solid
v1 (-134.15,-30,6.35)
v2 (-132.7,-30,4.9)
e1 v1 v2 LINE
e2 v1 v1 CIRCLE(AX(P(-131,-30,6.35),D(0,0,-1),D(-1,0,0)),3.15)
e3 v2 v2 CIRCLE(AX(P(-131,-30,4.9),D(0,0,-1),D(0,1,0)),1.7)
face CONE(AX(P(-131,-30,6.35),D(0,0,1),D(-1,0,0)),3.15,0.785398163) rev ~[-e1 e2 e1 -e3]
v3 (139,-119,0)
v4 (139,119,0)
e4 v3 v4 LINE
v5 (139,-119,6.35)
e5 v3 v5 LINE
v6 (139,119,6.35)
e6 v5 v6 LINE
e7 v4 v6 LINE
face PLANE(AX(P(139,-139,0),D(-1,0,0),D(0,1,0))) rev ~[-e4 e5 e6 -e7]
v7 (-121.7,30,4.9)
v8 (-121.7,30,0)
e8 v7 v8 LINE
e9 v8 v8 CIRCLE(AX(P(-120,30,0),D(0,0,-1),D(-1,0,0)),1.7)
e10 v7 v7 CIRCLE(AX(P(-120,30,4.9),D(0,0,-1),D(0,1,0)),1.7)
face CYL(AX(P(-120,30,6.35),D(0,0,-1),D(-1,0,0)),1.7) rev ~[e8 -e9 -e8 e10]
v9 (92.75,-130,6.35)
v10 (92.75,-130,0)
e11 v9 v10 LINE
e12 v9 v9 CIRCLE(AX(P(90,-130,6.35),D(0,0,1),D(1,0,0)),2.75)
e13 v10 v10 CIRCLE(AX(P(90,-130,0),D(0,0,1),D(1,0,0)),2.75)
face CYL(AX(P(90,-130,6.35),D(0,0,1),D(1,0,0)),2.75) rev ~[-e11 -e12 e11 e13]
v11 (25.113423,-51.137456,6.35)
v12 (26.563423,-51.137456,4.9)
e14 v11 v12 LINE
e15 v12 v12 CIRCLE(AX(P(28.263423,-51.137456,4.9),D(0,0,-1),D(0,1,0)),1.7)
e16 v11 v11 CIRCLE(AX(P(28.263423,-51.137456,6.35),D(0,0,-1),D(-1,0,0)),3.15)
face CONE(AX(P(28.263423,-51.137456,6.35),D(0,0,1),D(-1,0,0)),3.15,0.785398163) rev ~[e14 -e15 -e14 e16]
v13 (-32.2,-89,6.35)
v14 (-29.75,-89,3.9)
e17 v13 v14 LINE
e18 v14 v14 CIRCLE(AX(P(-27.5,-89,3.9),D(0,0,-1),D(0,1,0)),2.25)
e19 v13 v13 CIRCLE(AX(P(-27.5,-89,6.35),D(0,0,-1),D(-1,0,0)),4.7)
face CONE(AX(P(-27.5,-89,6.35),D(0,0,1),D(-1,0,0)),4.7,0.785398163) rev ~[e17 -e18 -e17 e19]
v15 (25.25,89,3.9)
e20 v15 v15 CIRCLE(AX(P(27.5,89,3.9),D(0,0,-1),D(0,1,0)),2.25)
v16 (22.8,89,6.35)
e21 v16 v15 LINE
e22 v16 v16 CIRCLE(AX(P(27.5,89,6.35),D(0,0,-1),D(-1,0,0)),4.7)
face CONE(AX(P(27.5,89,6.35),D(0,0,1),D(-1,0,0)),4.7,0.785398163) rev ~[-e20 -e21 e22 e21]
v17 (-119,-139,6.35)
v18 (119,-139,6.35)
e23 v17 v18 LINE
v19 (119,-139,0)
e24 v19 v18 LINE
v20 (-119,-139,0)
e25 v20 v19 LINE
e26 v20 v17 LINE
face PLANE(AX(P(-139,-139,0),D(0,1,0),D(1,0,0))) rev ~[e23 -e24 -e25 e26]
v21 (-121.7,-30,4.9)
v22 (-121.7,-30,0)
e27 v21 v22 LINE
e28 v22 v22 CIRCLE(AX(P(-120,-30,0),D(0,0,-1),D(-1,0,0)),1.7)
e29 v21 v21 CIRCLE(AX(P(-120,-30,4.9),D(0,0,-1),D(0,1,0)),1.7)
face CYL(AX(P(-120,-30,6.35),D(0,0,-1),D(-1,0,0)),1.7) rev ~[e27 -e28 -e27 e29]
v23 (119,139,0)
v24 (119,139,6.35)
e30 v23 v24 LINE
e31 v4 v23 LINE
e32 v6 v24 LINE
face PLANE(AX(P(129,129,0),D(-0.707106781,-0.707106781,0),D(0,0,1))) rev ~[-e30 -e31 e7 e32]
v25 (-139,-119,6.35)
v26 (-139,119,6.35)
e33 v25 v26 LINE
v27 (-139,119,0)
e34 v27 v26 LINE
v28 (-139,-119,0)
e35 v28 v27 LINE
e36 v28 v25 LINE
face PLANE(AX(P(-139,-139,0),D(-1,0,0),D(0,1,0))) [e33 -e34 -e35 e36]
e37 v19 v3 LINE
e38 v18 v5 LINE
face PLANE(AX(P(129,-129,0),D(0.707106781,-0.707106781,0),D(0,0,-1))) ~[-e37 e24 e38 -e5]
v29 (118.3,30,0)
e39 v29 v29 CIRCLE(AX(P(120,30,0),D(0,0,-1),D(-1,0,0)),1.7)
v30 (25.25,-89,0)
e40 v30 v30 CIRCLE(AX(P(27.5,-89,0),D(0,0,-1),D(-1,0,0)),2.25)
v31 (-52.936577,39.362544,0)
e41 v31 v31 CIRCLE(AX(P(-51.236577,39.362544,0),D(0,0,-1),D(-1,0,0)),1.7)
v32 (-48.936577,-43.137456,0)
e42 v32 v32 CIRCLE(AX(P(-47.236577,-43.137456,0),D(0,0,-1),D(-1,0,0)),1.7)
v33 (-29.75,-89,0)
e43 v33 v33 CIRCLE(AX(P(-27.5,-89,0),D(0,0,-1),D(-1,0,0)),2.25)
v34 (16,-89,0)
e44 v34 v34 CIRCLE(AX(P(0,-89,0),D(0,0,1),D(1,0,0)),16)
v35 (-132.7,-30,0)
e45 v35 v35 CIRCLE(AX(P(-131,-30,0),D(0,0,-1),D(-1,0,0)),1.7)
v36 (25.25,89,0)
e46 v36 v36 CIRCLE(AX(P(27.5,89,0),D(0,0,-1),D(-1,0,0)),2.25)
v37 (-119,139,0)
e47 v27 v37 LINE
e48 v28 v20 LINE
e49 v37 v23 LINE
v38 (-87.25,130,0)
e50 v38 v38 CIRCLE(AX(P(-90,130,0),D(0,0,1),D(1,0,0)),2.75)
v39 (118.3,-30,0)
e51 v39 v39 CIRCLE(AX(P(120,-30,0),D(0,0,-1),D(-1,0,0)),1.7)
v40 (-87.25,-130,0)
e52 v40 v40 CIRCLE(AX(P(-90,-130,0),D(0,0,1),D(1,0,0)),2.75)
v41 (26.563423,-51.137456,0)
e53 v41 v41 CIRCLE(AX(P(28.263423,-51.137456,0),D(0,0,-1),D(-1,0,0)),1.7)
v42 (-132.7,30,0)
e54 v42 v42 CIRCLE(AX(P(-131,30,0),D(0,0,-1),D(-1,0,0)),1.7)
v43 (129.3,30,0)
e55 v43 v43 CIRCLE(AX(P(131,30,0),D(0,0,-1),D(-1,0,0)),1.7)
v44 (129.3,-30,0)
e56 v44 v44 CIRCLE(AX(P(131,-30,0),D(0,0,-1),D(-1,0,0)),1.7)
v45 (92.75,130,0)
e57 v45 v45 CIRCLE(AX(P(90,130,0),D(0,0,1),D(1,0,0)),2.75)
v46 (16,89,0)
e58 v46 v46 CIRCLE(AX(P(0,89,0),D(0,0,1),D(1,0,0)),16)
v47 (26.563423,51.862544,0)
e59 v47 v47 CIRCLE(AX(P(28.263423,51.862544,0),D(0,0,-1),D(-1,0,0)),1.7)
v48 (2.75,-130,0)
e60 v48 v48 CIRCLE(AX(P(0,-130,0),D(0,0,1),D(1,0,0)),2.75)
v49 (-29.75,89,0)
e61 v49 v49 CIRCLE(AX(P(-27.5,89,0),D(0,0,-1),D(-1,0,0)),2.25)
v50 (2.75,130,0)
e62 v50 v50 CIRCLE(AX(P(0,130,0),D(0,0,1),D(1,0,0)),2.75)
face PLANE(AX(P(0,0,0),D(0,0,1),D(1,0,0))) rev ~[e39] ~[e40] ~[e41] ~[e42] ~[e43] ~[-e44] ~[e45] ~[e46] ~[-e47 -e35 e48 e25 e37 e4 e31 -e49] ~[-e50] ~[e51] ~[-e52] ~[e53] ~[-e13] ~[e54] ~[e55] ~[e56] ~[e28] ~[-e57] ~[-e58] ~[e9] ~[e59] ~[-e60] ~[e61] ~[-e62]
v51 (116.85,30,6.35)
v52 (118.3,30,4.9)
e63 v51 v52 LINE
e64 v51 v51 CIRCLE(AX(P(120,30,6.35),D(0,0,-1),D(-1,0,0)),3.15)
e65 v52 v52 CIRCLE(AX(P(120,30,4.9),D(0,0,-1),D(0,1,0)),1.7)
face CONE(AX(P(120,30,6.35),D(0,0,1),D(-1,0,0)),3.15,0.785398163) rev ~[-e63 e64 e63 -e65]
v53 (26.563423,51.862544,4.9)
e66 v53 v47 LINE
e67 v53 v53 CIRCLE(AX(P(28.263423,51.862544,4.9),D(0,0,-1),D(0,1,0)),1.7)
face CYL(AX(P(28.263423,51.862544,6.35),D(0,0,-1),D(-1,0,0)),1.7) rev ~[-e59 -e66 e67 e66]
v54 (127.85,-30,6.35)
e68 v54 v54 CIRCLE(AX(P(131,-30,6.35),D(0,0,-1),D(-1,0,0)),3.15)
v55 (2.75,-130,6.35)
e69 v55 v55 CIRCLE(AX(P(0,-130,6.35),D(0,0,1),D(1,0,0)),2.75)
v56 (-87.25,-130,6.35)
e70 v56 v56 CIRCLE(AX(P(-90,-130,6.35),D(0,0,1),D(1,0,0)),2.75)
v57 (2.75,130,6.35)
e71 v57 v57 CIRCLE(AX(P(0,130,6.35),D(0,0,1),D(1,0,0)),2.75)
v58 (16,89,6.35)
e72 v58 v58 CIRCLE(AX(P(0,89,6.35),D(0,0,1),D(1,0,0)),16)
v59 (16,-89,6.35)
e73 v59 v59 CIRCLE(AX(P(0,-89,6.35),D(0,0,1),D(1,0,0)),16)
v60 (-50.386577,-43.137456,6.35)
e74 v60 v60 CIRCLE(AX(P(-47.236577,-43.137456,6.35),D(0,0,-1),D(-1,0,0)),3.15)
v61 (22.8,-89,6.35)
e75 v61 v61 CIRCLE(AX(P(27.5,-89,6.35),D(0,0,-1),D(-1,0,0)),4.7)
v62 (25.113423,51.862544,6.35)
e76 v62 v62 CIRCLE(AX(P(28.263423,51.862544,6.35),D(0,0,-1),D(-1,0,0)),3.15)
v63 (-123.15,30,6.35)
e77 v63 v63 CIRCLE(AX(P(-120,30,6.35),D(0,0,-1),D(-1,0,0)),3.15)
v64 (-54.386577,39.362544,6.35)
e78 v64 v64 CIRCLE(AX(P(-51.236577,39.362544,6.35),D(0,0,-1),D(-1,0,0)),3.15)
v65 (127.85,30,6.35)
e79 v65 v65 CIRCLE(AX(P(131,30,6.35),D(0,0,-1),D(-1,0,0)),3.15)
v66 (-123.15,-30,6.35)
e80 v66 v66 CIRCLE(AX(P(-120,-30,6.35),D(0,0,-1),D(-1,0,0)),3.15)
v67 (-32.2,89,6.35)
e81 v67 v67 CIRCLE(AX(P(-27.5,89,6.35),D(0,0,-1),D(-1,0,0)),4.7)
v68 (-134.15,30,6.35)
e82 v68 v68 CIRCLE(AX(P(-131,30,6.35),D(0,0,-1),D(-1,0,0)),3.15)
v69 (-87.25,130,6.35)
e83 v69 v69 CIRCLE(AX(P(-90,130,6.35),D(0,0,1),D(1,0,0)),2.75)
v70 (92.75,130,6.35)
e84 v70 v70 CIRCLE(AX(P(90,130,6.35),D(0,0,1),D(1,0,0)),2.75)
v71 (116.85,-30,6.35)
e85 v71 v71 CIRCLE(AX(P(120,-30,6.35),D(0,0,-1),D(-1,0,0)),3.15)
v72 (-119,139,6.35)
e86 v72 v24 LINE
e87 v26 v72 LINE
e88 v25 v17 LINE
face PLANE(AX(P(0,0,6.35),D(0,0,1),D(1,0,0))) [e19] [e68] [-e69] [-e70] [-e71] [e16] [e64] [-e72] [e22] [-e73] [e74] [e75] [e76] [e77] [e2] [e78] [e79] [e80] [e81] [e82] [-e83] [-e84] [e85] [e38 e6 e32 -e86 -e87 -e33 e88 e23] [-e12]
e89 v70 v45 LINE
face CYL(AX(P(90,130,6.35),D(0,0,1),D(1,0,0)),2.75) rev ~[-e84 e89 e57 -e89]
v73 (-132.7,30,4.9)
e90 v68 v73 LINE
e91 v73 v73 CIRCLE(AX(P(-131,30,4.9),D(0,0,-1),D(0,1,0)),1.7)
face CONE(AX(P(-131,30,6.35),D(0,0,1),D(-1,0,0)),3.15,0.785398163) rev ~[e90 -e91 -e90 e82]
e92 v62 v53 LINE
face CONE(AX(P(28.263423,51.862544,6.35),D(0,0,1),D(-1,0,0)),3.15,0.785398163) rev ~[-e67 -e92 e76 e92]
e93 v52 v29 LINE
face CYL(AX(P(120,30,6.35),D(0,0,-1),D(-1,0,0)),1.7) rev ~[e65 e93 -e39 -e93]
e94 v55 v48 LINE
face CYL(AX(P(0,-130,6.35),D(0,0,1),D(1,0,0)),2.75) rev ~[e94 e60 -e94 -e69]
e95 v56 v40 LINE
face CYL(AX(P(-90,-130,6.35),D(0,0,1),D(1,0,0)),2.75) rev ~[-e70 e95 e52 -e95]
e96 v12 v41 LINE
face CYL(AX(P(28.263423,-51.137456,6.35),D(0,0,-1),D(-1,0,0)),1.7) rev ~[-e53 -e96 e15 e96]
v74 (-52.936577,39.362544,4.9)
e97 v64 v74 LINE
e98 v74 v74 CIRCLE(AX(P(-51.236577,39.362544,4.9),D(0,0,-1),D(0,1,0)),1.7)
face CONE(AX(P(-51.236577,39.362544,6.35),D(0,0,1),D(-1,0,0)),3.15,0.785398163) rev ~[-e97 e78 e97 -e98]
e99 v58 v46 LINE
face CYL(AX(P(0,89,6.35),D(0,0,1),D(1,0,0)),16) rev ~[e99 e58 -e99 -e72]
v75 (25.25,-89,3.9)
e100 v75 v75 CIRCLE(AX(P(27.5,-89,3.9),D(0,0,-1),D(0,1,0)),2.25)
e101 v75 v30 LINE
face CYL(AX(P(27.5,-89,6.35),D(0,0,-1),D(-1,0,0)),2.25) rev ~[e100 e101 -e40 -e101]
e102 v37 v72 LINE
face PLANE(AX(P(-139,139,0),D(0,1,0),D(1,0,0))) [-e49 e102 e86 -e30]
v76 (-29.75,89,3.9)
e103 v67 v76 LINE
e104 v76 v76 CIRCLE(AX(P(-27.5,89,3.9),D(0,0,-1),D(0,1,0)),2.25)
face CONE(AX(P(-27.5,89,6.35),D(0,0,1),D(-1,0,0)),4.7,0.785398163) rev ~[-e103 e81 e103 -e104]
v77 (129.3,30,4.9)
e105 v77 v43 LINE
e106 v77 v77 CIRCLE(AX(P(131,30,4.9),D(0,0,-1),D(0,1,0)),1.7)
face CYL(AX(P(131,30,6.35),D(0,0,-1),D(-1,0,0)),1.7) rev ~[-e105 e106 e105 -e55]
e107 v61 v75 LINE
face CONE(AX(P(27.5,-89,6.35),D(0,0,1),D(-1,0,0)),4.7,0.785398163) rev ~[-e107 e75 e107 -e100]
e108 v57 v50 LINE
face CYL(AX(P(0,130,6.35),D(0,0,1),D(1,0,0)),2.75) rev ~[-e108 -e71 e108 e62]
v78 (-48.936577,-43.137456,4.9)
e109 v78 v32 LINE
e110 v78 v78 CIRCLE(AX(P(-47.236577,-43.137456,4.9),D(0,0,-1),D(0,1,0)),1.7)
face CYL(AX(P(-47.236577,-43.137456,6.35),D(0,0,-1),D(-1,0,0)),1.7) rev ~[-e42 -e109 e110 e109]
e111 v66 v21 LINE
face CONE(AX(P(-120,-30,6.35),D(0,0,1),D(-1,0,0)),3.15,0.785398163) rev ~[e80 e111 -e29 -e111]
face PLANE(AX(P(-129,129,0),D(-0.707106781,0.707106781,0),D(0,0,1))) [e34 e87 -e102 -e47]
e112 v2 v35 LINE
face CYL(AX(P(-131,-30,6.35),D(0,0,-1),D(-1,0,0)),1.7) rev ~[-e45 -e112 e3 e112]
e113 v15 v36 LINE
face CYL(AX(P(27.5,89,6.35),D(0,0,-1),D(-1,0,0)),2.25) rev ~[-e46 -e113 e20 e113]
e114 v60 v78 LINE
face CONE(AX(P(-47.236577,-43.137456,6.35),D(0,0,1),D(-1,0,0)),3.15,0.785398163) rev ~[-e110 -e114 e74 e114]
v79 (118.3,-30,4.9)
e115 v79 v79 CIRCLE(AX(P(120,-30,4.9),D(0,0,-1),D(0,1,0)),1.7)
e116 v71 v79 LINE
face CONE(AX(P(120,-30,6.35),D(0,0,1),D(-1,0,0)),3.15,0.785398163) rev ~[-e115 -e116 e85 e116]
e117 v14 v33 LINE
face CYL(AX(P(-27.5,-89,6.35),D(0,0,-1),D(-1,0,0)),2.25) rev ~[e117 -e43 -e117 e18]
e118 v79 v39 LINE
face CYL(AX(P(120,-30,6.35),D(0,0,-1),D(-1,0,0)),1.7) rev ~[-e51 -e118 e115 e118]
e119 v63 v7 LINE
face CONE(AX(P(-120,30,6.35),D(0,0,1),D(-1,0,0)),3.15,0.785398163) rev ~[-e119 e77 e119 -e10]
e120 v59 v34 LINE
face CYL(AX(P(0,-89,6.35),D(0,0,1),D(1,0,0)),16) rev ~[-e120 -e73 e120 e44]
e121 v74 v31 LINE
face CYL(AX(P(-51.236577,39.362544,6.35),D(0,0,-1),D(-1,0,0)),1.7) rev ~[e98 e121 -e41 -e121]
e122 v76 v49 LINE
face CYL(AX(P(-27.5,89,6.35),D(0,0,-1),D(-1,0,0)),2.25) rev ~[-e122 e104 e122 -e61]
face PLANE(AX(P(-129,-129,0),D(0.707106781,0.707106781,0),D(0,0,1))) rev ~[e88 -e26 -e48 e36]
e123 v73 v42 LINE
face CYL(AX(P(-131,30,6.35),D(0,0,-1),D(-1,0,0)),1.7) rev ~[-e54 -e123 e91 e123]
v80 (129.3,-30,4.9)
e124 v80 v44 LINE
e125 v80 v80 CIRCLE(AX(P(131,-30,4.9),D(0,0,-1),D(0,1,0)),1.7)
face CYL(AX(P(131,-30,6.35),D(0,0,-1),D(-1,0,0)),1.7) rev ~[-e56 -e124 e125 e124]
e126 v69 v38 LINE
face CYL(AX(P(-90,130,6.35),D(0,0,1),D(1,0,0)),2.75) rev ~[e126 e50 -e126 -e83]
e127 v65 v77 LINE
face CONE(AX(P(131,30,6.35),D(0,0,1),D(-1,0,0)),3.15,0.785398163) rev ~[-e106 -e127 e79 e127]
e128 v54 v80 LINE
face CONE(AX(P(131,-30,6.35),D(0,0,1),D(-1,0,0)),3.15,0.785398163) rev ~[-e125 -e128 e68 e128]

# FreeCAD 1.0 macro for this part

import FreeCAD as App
import Part
import Sketcher

V = App.Vector
Q = App.Units.Quantity


def edges_at(feature, points):
    """Names of the edges that pass closest to the given points."""
    edges = feature.Shape.Edges
    near = lambda p: min(range(len(edges)), key=lambda i: edges[i].distToShape(Part.Vertex(*p))[0])
    return sorted({f"Edge{near(p) + 1}" for p in points})

doc = App.newDocument("Part")
body = doc.addObject("PartDesign::Body", "Body")

# Sketch on XY plane
sketch1 = body.newObject("Sketcher::SketchObject", "Sketch")
sketch1.AttachmentSupport = (doc.getObject("XY_Plane"), [""])
sketch1.MapMode = "FlatFace"
sketch1.addGeometry(Part.LineSegment(V(-139, 139, 0), V(-139, -139, 0)), False)
sketch1.addGeometry(Part.LineSegment(V(-139, -139, 0), V(139, -139, 0)), False)
sketch1.addGeometry(Part.LineSegment(V(139, -139, 0), V(139, 139, 0)), False)
sketch1.addGeometry(Part.LineSegment(V(139, 139, 0), V(-139, 139, 0)), False)
sketch1.addConstraint(Sketcher.Constraint("Coincident", 0, 2, 1, 1))
sketch1.addConstraint(Sketcher.Constraint("Coincident", 1, 2, 2, 1))
sketch1.addConstraint(Sketcher.Constraint("Coincident", 2, 2, 3, 1))
sketch1.addConstraint(Sketcher.Constraint("Coincident", 3, 2, 0, 1))
sketch1.addConstraint(Sketcher.Constraint("Vertical", 0))
sketch1.addConstraint(Sketcher.Constraint("Horizontal", 1))
sketch1.addConstraint(Sketcher.Constraint("Vertical", 2))
sketch1.addConstraint(Sketcher.Constraint("Horizontal", 3))
sketch1.addConstraint(Sketcher.Constraint("Symmetric", 0, 2, 2, 2, -1, 1))
sketch1.addConstraint(Sketcher.Constraint("Equal", 3, 0))
sketch1.addConstraint(Sketcher.Constraint("DistanceX", 1, 1, 1, 2, Q("278 mm")))
pad1 = body.newObject("PartDesign::Pad", "Pad")
pad1.Profile = sketch1
pad1.Length = 6.35
doc.recompute()

chamfer = body.newObject("PartDesign::Chamfer", "Chamfer")
chamfer.Base = (pad1, edges_at(pad1, [
    (-139, 139, 3.175),
    (139, 139, 3.175),
    (139, -139, 3.175),
    (-139, -139, 3.175),
]))
chamfer.Size = 20

# Sketch on XY plane
sketch2 = body.newObject("Sketcher::SketchObject", "Sketch001")
sketch2.AttachmentSupport = (doc.getObject("XY_Plane"), [""])
sketch2.MapMode = "FlatFace"
sketch2.AttachmentOffset = App.Placement(V(0, 0, 6.35), App.Rotation())
sketch2.addGeometry(Part.Circle(V(-90, 130, 0), V(0, 0, 1), 2.75), False)
sketch2.addGeometry(Part.Circle(V(0, 130, 0), V(0, 0, 1), 2.75), False)
sketch2.addGeometry(Part.Circle(V(90, 130, 0), V(0, 0, 1), 2.75), False)
sketch2.addGeometry(Part.Circle(V(90, -130, 0), V(0, 0, 1), 2.75), False)
sketch2.addGeometry(Part.Circle(V(0, -130, 0), V(0, 0, 1), 2.75), False)
sketch2.addGeometry(Part.Circle(V(-90, -130, 0), V(0, 0, 1), 2.75), False)
sketch2.addConstraint(Sketcher.Constraint("Equal", 0, 1))
sketch2.addConstraint(Sketcher.Constraint("Equal", 1, 2))
sketch2.addConstraint(Sketcher.Constraint("Equal", 2, 3))
sketch2.addConstraint(Sketcher.Constraint("Equal", 3, 4))
sketch2.addConstraint(Sketcher.Constraint("Equal", 4, 5))
sketch2.addConstraint(Sketcher.Constraint("Symmetric", 0, 3, 3, 3, -1, 1))
sketch2.addConstraint(Sketcher.Constraint("Symmetric", 1, 3, 4, 3, -1, 1))
sketch2.addConstraint(Sketcher.Constraint("Symmetric", 2, 3, 5, 3, -1, 1))
sketch2.addConstraint(Sketcher.Constraint("Symmetric", 0, 3, 2, 3, -2))
sketch2.addConstraint(Sketcher.Constraint("PointOnObject", 1, 3, -2))
sketch2.addConstraint(Sketcher.Constraint("Horizontal", 0, 3, 1, 3))
sketch2.addConstraint(Sketcher.Constraint("Diameter", 0, Q("5.5 mm")))
sketch2.addConstraint(Sketcher.Constraint("DistanceX", 0, 3, -1, 1, Q("90 mm")))
sketch2.addConstraint(Sketcher.Constraint("DistanceY", -1, 1, 0, 3, Q("130 mm")))
pocket1 = body.newObject("PartDesign::Pocket", "Pocket")
pocket1.Profile = sketch2
pocket1.Length = 76.2

# Sketch on XY plane
sketch3 = body.newObject("Sketcher::SketchObject", "Sketch002")
sketch3.AttachmentSupport = (doc.getObject("XY_Plane"), [""])
sketch3.MapMode = "FlatFace"
sketch3.AttachmentOffset = App.Placement(V(0, 0, 6.35), App.Rotation())
sketch3.addGeometry(Part.Circle(V(0, 89, 0), V(0, 0, 1), 16), False)
sketch3.addGeometry(Part.Circle(V(0, -89, 0), V(0, 0, 1), 16), False)
sketch3.addConstraint(Sketcher.Constraint("Equal", 0, 1))
sketch3.addConstraint(Sketcher.Constraint("Symmetric", 0, 3, 1, 3, -1, 1))
sketch3.addConstraint(Sketcher.Constraint("PointOnObject", 0, 3, -2))
sketch3.addConstraint(Sketcher.Constraint("Diameter", 0, Q("32 mm")))
sketch3.addConstraint(Sketcher.Constraint("DistanceY", -1, 1, 0, 3, Q("89 mm")))
pocket2 = body.newObject("PartDesign::Pocket", "Pocket001")
pocket2.Profile = sketch3
pocket2.Length = 105

# Sketch on XY plane
sketch4 = body.newObject("Sketcher::SketchObject", "Sketch003")
sketch4.AttachmentSupport = (doc.getObject("XY_Plane"), [""])
sketch4.MapMode = "FlatFace"
sketch4.AttachmentOffset = App.Placement(V(0, 0, 6.35), App.Rotation())
sketch4.addGeometry(Part.Circle(V(-27.5, 89, 0), V(0, 0, 1), 2.25), False)
sketch4.addGeometry(Part.Circle(V(27.5, 89, 0), V(0, 0, 1), 2.25), False)
sketch4.addGeometry(Part.Circle(V(27.5, -89, 0), V(0, 0, 1), 2.25), False)
sketch4.addGeometry(Part.Circle(V(-27.5, -89, 0), V(0, 0, 1), 2.25), False)
sketch4.addConstraint(Sketcher.Constraint("Equal", 0, 1))
sketch4.addConstraint(Sketcher.Constraint("Equal", 1, 2))
sketch4.addConstraint(Sketcher.Constraint("Equal", 2, 3))
sketch4.addConstraint(Sketcher.Constraint("Symmetric", 0, 3, 2, 3, -1, 1))
sketch4.addConstraint(Sketcher.Constraint("Symmetric", 1, 3, 3, 3, -1, 1))
sketch4.addConstraint(Sketcher.Constraint("Symmetric", 0, 3, 1, 3, -2))
sketch4.addConstraint(Sketcher.Constraint("Diameter", 0, Q("4.5 mm")))
sketch4.addConstraint(Sketcher.Constraint("DistanceY", -1, 1, 0, 3, Q("89 mm")))
sketch4.addConstraint(Sketcher.Constraint("DistanceX", 0, 3, 1, 3, Q("55 mm")))
doc.recompute()
hole = body.newObject("PartDesign::Hole", "Hole")
hole.Profile = sketch4
hole.ThreadType = "None"
hole.Diameter = 4.5
hole.DepthType = "ThroughAll"
hole.HoleCutType = "Countersink"
hole.HoleCutDiameter = 9.4
hole.HoleCutCountersinkAngle = 90

# Sketch on XY plane
sketch5 = body.newObject("Sketcher::SketchObject", "Sketch004")
sketch5.AttachmentSupport = (doc.getObject("XY_Plane"), [""])
sketch5.MapMode = "FlatFace"
sketch5.AttachmentOffset = App.Placement(V(0, 0, 6.35), App.Rotation())
sketch5.addGeometry(Part.Circle(V(-131, 30, 0), V(0, 0, 1), 1.7), False)
sketch5.addGeometry(Part.Circle(V(-120, 30, 0), V(0, 0, 1), 1.7), False)
sketch5.addGeometry(Part.Circle(V(-120, -30, 0), V(0, 0, 1), 1.7), False)
sketch5.addGeometry(Part.Circle(V(-131, -30, 0), V(0, 0, 1), 1.7), False)
sketch5.addGeometry(Part.Circle(V(131, -30, 0), V(0, 0, 1), 1.7), False)
sketch5.addGeometry(Part.Circle(V(120, -30, 0), V(0, 0, 1), 1.7), False)
sketch5.addGeometry(Part.Circle(V(120, 30, 0), V(0, 0, 1), 1.7), False)
sketch5.addGeometry(Part.Circle(V(131, 30, 0), V(0, 0, 1), 1.7), False)
sketch5.addConstraint(Sketcher.Constraint("Equal", 0, 1))
sketch5.addConstraint(Sketcher.Constraint("Equal", 1, 2))
sketch5.addConstraint(Sketcher.Constraint("Equal", 2, 3))
sketch5.addConstraint(Sketcher.Constraint("Equal", 3, 4))
sketch5.addConstraint(Sketcher.Constraint("Equal", 4, 5))
sketch5.addConstraint(Sketcher.Constraint("Equal", 5, 6))
sketch5.addConstraint(Sketcher.Constraint("Equal", 6, 7))
sketch5.addConstraint(Sketcher.Constraint("Symmetric", 0, 3, 4, 3, -1, 1))
sketch5.addConstraint(Sketcher.Constraint("Symmetric", 1, 3, 5, 3, -1, 1))
sketch5.addConstraint(Sketcher.Constraint("Symmetric", 2, 3, 6, 3, -1, 1))
sketch5.addConstraint(Sketcher.Constraint("Symmetric", 3, 3, 7, 3, -1, 1))
sketch5.addConstraint(Sketcher.Constraint("Symmetric", 3, 3, 4, 3, -2))
sketch5.addConstraint(Sketcher.Constraint("Symmetric", 2, 3, 5, 3, -2))
sketch5.addConstraint(Sketcher.Constraint("Horizontal", 0, 3, 1, 3))
sketch5.addConstraint(Sketcher.Constraint("Diameter", 0, Q("3.4 mm")))
sketch5.addConstraint(Sketcher.Constraint("DistanceX", 0, 3, -1, 1, Q("131 mm")))
sketch5.addConstraint(Sketcher.Constraint("DistanceY", -1, 1, 0, 3, Q("30 mm")))
sketch5.addConstraint(Sketcher.Constraint("DistanceX", 1, 3, -1, 1, Q("120 mm")))
doc.recompute()
hole2 = body.newObject("PartDesign::Hole", "Hole001")
hole2.Profile = sketch5
hole2.ThreadType = "None"
hole2.Diameter = 3.4
hole2.DepthType = "ThroughAll"
hole2.HoleCutType = "Countersink"
hole2.HoleCutDiameter = 6.3
hole2.HoleCutCountersinkAngle = 90

# Sketch on XY plane
sketch6 = body.newObject("Sketcher::SketchObject", "Sketch005")
sketch6.AttachmentSupport = (doc.getObject("XY_Plane"), [""])
sketch6.MapMode = "FlatFace"
sketch6.AttachmentOffset = App.Placement(V(0, 0, 6.35), App.Rotation())
sketch6.addGeometry(Part.Circle(V(-47.236577, -43.137456, 0), V(0, 0, 1), 1.7), False)
sketch6.addGeometry(Part.Circle(V(-51.236577, 39.362544, 0), V(0, 0, 1), 1.7), False)
sketch6.addGeometry(Part.Circle(V(28.263423, 51.862544, 0), V(0, 0, 1), 1.7), False)
sketch6.addGeometry(Part.Circle(V(28.263423, -51.137456, 0), V(0, 0, 1), 1.7), False)
sketch6.addConstraint(Sketcher.Constraint("Equal", 0, 1))
sketch6.addConstraint(Sketcher.Constraint("Equal", 1, 2))
sketch6.addConstraint(Sketcher.Constraint("Equal", 2, 3))
sketch6.addConstraint(Sketcher.Constraint("Vertical", 2, 3, 3, 3))
sketch6.addConstraint(Sketcher.Constraint("Diameter", 0, Q("3.4 mm")))
sketch6.addConstraint(Sketcher.Constraint("DistanceX", 1, 3, 0, 3, Q("4 mm")))
sketch6.addConstraint(Sketcher.Constraint("DistanceY", 0, 3, 2, 3, Q("95 mm")))
sketch6.addConstraint(Sketcher.Constraint("DistanceY", 3, 3, 0, 3, Q("8 mm")))
sketch6.addConstraint(Sketcher.Constraint("DistanceY", 0, 3, 1, 3, Q("82.5 mm")))
sketch6.addConstraint(Sketcher.Constraint("DistanceX", 1, 3, 2, 3, Q("79.5 mm")))
sketch6.addConstraint(Sketcher.Constraint("DistanceX", 0, 3, -1, 1, Q("47.236577 mm")))
sketch6.addConstraint(Sketcher.Constraint("DistanceY", 0, 3, -1, 1, Q("43.137456 mm")))
doc.recompute()
hole3 = body.newObject("PartDesign::Hole", "Hole002")
hole3.Profile = sketch6
hole3.ThreadType = "None"
hole3.Diameter = 3.4
hole3.DepthType = "ThroughAll"
hole3.HoleCutType = "Countersink"
hole3.HoleCutDiameter = 6.3
hole3.HoleCutCountersinkAngle = 90

doc.recompute()
